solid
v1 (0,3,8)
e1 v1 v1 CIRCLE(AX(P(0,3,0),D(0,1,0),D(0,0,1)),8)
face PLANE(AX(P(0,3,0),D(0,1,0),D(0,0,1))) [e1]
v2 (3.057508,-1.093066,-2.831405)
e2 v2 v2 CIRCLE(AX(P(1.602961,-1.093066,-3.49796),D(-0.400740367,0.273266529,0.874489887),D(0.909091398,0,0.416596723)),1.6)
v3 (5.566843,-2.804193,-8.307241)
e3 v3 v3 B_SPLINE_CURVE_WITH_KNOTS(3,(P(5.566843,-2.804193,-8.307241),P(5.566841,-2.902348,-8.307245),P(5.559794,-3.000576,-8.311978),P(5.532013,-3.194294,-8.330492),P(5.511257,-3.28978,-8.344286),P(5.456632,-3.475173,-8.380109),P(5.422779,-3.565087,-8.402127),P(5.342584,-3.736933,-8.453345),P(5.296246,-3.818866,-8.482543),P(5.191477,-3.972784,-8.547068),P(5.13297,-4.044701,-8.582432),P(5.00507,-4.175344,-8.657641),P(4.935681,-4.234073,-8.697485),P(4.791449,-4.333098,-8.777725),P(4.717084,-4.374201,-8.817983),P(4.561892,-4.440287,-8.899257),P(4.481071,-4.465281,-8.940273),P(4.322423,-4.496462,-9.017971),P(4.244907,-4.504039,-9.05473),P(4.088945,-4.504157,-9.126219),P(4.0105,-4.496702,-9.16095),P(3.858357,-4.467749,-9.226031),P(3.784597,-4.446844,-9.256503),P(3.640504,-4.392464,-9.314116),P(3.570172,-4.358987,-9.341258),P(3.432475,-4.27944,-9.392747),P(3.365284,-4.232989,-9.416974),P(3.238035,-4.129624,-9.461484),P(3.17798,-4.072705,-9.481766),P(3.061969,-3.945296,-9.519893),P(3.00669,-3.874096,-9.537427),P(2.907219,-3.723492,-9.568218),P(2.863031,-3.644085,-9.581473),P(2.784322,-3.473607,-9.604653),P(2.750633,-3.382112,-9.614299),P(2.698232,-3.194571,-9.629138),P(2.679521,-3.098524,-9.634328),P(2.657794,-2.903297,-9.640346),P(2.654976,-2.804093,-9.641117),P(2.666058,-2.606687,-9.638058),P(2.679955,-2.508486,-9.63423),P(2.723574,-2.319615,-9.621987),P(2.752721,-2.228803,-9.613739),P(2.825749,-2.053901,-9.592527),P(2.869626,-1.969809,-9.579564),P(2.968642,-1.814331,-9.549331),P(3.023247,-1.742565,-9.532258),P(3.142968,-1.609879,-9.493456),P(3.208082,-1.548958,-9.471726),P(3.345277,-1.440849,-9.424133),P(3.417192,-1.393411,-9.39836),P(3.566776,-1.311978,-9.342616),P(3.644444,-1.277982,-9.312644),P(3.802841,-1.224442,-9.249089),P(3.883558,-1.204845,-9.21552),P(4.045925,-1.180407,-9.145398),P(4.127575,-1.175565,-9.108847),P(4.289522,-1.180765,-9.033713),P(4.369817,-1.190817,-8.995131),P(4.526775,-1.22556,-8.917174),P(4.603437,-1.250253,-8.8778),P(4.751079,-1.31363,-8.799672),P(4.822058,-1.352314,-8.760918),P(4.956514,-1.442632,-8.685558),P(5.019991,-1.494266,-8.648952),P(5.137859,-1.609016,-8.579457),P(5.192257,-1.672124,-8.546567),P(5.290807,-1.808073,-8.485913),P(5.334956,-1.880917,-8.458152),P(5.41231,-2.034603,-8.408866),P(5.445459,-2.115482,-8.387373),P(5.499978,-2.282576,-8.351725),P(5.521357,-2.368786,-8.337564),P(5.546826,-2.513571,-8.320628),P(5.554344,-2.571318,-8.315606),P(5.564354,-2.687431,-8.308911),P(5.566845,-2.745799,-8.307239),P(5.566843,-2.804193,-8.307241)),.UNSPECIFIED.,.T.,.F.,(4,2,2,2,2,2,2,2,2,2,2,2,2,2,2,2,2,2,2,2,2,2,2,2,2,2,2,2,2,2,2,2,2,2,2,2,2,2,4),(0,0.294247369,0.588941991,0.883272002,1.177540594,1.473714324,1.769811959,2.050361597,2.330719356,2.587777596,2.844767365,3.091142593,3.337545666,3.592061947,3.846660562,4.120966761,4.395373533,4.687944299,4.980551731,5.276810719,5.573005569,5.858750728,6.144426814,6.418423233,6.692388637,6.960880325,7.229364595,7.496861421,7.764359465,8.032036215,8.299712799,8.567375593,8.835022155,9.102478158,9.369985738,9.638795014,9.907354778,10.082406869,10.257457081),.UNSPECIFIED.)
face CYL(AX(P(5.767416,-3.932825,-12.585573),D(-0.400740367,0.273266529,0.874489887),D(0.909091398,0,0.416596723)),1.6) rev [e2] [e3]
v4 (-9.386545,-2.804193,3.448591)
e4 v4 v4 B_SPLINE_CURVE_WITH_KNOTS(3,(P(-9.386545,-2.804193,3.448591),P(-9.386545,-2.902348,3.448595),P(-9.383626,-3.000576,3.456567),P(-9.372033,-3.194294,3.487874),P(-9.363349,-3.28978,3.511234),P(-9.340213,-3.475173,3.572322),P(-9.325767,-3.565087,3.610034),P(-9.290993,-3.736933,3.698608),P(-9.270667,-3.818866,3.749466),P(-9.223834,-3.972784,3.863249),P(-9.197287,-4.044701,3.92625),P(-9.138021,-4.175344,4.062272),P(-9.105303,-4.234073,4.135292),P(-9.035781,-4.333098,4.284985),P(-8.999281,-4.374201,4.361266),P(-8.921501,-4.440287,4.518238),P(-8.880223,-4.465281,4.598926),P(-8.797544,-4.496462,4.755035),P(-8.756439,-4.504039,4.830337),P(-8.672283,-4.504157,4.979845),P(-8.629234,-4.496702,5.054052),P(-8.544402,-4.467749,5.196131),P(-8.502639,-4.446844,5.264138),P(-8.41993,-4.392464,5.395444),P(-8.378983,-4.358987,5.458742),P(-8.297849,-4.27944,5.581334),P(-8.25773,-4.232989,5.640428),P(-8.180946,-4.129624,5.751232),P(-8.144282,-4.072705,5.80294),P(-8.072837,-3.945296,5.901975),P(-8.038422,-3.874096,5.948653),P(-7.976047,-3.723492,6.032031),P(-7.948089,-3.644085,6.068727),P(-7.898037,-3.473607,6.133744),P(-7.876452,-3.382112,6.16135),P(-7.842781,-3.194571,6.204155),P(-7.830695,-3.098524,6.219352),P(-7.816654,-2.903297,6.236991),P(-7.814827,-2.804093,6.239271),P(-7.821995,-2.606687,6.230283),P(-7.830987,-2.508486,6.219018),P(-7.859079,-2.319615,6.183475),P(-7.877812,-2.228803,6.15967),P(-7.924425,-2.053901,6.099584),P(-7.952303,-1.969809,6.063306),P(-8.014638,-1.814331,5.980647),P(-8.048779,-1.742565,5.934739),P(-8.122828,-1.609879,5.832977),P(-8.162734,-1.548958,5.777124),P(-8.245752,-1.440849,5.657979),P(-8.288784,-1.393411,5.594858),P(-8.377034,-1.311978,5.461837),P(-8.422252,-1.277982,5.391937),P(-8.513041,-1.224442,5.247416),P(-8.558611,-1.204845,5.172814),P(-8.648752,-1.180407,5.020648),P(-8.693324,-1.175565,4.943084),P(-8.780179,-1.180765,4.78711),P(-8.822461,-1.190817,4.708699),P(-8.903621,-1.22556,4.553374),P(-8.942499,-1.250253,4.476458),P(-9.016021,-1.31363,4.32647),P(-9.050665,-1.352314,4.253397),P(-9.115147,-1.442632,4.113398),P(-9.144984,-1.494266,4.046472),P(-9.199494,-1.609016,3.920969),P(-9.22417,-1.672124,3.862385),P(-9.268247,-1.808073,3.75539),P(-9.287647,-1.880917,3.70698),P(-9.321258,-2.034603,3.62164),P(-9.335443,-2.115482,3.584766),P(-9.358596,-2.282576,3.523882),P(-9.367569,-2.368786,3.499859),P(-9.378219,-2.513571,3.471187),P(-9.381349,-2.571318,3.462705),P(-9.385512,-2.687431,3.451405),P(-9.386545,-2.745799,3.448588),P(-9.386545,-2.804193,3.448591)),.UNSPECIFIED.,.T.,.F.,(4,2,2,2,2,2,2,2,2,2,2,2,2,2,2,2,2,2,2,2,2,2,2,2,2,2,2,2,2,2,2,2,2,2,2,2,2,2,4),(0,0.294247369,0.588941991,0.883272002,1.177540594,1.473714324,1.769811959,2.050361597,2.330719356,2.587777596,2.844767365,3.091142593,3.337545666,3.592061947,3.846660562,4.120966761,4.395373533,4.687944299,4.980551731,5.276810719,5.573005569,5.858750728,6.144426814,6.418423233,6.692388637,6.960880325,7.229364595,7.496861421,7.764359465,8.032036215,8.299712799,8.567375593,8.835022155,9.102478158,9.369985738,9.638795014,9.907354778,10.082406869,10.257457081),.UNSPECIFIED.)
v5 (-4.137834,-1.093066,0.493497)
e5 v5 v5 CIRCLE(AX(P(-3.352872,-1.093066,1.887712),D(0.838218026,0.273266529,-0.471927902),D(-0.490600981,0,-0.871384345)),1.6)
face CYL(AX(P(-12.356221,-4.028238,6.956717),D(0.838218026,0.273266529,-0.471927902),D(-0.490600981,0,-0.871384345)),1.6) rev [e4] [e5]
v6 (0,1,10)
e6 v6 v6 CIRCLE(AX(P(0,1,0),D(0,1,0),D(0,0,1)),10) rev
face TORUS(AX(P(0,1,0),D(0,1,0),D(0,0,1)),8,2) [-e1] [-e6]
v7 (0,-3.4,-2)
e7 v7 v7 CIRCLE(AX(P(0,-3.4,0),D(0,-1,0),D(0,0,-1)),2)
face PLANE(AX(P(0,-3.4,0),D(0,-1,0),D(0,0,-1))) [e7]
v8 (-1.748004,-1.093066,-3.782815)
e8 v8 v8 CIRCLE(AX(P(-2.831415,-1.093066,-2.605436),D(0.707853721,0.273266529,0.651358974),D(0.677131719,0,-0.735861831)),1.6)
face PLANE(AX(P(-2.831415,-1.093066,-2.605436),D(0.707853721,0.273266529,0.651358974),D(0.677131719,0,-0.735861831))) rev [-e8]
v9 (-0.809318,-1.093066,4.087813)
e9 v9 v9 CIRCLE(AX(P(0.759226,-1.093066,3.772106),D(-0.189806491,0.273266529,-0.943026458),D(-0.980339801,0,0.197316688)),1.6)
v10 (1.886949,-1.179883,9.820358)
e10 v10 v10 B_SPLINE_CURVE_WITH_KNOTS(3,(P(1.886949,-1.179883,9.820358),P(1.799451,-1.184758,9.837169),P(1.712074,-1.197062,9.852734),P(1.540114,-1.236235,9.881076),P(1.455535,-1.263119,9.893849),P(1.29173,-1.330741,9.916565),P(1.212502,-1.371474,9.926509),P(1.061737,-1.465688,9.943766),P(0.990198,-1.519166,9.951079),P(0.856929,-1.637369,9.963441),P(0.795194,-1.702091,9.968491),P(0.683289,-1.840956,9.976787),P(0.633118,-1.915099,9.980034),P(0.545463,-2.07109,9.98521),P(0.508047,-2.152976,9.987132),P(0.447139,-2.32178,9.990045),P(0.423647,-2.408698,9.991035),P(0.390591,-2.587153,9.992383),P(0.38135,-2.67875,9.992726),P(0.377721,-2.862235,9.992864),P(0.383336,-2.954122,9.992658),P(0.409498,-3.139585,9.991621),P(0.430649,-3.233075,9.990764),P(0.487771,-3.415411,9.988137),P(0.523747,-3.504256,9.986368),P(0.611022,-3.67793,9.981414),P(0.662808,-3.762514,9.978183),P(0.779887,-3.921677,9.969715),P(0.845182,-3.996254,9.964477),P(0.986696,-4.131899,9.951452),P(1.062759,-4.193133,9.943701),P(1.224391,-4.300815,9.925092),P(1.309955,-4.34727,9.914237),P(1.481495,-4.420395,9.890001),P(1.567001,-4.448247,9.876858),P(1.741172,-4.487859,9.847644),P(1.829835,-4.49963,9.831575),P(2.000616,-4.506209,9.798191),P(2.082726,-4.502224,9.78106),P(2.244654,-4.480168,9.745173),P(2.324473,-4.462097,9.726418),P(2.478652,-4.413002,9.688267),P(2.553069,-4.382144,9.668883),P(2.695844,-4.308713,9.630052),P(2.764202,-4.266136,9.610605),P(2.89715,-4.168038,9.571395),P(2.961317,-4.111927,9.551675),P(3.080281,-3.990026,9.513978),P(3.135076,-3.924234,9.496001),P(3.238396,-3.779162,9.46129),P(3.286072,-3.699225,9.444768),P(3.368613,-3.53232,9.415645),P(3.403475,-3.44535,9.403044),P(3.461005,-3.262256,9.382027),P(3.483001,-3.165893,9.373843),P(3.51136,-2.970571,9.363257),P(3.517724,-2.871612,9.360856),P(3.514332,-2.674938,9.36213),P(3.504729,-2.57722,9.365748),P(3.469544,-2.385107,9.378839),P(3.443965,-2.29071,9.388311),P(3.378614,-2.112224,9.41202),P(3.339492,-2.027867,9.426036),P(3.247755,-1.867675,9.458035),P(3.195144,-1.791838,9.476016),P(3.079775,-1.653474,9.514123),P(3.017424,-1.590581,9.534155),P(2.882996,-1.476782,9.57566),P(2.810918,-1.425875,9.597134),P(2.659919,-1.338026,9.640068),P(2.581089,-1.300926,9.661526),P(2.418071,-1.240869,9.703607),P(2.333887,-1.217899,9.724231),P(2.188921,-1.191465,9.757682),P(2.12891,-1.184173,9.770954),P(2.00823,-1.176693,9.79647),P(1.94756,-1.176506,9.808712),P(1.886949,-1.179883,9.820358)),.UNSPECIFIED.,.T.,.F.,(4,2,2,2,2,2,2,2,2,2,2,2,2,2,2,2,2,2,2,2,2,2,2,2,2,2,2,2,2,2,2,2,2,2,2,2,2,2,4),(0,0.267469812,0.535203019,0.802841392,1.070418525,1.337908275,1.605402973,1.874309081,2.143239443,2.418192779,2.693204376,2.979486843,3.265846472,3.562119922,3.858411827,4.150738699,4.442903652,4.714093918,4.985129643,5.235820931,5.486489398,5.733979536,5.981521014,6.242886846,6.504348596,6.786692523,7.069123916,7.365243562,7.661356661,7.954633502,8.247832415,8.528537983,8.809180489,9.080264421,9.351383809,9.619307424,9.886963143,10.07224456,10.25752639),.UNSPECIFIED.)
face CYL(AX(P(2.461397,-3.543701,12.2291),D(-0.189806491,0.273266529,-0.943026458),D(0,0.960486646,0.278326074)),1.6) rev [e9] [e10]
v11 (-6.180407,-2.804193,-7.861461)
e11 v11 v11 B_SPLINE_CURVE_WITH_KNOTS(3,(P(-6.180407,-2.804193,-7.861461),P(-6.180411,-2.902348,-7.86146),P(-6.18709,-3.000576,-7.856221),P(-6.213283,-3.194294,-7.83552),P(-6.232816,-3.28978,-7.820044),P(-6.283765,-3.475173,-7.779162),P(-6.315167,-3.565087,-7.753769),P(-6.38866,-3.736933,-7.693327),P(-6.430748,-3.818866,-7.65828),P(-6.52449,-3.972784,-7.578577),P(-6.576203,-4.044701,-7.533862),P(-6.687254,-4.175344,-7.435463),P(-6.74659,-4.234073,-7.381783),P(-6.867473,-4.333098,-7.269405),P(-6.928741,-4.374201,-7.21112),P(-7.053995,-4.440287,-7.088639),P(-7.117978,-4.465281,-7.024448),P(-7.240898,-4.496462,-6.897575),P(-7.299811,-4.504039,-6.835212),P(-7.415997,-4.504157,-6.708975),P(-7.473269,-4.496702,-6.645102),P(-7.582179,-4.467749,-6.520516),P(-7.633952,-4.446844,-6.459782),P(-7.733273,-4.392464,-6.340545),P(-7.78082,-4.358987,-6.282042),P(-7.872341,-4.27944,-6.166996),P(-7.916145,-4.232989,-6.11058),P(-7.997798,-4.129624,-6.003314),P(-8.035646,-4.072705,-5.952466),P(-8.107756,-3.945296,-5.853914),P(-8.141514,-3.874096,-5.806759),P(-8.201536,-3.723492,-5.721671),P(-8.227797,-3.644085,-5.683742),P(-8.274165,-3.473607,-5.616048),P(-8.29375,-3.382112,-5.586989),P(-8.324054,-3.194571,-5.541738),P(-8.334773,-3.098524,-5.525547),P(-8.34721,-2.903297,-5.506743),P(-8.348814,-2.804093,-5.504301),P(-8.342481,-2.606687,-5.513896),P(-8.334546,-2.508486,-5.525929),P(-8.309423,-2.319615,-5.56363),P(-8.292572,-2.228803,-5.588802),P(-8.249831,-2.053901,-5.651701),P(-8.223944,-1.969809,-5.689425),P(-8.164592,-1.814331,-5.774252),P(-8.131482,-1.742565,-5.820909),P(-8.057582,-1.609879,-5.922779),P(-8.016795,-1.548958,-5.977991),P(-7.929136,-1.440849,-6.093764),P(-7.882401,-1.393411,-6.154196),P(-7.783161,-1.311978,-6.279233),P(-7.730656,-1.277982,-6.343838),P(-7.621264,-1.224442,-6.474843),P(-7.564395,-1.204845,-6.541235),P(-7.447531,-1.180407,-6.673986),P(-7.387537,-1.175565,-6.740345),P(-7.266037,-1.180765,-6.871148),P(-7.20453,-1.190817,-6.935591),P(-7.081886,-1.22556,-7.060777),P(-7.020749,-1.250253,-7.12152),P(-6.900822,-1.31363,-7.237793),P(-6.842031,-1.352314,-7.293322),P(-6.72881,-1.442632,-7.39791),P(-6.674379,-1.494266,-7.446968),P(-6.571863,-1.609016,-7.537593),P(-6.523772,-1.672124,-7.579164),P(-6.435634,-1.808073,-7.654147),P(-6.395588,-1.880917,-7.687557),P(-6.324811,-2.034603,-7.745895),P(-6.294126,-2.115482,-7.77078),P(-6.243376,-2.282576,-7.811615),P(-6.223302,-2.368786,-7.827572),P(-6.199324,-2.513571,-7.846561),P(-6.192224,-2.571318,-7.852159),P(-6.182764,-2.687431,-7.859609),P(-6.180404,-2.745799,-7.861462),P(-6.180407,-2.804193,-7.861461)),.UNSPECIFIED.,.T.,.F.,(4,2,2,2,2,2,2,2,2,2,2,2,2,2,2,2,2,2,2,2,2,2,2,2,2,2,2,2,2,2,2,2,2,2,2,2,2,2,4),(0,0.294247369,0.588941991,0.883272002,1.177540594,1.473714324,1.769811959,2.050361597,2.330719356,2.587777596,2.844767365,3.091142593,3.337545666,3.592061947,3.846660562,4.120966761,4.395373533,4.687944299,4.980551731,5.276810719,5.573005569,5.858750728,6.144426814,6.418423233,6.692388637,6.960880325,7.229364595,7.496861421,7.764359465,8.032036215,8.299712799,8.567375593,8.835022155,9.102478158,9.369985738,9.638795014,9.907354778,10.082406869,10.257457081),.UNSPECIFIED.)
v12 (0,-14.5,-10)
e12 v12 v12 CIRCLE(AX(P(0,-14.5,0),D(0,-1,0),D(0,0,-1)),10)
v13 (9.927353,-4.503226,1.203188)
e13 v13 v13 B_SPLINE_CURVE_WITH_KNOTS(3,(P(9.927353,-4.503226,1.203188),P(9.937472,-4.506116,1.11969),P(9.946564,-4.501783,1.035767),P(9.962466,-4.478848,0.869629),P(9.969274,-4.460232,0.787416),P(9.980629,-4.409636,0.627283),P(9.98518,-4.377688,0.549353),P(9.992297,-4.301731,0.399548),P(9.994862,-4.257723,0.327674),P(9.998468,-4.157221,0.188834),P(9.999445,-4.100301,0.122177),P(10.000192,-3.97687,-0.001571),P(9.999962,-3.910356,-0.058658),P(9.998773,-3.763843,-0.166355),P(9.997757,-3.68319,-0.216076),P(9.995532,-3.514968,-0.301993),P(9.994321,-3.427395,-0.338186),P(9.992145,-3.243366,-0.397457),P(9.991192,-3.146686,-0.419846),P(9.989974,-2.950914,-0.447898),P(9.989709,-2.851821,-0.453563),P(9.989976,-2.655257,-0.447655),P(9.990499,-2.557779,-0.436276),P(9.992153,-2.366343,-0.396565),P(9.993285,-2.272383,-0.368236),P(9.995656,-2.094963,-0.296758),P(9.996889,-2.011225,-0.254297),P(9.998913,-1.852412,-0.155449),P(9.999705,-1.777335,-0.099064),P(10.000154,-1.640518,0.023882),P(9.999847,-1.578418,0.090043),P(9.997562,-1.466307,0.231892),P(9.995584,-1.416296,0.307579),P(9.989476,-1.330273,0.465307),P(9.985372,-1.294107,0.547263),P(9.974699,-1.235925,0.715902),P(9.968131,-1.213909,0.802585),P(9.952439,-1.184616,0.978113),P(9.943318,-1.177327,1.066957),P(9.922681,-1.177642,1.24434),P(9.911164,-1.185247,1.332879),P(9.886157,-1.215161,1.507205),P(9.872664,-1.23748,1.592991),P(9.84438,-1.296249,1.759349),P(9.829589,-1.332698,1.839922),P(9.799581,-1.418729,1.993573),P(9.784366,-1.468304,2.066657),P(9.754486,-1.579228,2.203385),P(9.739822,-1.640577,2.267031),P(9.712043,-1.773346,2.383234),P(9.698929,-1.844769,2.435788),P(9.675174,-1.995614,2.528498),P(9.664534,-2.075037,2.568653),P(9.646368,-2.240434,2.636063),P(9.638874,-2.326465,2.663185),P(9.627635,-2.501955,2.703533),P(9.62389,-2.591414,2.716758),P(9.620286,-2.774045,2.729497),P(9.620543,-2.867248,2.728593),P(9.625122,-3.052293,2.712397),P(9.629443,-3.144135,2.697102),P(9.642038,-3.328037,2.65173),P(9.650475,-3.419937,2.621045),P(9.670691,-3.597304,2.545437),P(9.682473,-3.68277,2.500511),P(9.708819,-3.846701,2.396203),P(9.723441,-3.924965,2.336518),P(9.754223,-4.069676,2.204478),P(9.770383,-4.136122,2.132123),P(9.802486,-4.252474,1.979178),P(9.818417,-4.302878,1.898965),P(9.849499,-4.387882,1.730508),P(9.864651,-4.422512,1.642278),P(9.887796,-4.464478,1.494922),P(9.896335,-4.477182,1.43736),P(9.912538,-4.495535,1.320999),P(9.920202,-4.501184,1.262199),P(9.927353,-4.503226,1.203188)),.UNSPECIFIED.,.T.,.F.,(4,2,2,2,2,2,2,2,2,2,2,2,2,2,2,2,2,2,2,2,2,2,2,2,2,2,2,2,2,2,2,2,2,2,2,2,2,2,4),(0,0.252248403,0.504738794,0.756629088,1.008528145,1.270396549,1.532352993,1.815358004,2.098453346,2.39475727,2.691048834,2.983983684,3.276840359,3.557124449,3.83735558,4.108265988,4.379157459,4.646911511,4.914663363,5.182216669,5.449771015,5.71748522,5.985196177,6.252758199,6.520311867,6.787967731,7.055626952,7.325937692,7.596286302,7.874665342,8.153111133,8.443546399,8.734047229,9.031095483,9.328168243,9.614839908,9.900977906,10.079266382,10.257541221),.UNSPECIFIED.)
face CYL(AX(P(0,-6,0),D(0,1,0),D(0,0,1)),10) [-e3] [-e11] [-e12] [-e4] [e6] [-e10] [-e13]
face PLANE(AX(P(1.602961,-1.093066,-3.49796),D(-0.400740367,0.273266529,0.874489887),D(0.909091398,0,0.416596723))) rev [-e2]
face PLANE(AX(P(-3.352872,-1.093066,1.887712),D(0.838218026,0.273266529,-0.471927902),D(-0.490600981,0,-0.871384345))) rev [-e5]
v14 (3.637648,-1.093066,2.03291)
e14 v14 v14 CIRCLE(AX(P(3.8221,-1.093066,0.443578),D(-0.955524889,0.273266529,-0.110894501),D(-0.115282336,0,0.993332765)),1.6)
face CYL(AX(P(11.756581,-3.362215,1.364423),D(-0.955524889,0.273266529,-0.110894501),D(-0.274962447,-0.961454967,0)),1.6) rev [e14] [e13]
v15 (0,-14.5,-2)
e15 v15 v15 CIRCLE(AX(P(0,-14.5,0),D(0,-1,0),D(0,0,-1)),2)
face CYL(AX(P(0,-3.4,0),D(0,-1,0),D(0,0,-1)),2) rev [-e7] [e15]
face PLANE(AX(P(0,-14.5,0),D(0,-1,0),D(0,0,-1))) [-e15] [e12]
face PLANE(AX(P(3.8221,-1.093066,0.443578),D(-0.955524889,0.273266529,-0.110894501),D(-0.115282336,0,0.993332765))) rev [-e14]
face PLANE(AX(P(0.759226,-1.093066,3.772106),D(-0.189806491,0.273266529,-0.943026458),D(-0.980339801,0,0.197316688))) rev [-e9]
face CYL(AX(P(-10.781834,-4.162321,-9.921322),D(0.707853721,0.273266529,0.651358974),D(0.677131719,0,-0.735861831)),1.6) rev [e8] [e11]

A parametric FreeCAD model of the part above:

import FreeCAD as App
import Part
import Sketcher
from FreeCAD import Vector


def edges_at(feature, points):
    """Names of the edges that pass closest to the given points."""
    edges = feature.Shape.Edges
    near = lambda p: min(range(len(edges)), key=lambda i: edges[i].distToShape(Part.Vertex(*p))[0])
    return sorted({f"Edge{near(p) + 1}" for p in points})

doc = App.newDocument("Part")
body = doc.addObject("PartDesign::Body", "Body")

# Sketch on XZ plane
sketch1 = doc.addObject("Sketcher::SketchObject", "Sketch")
body.addObject(sketch1)
sketch1.AttachmentSupport = (doc.XZ_Plane, [""])
sketch1.MapMode = "FlatFace"
sketch1.addGeometry(Part.Circle(Vector(0, 0, 0), Vector(0, 0, 1), 10), False)
sketch1.addConstraint([
    Sketcher.Constraint("Coincident", 0, 3, -1, 1),
    Sketcher.Constraint("Diameter", 0, 20.0),
])
pad1 = doc.addObject("PartDesign::Pad", "Pad")
body.addObject(pad1)
pad1.Profile = sketch1
pad1.Type = "TwoLengths"
pad1.Length = 3
pad1.Length2 = 6
pad1.Reversed = True

# Sketch on an angled plane
sketch2 = doc.addObject("Sketcher::SketchObject", "Sketch001")
body.addObject(sketch2)
sketch2.Placement = App.Placement(Vector(-3.352872, -1.093066, 1.887712), App.Rotation(Vector(-0.448686261, -0.14627571, -0.881637145), Vector(-0.309953511, 0.950751713, 0), Vector(0.838218026, 0.273266529, -0.471927902), "ZXY"))
sketch2.addGeometry(Part.Circle(Vector(0, 0, 0), Vector(0, 0, 1), 1.6), False)
sketch2.addConstraint([
    Sketcher.Constraint("Coincident", 0, 3, -1, 1),
    Sketcher.Constraint("Diameter", 0, 3.2),
])
pocket1 = doc.addObject("PartDesign::Pocket", "Pocket")
body.addObject(pocket1)
pocket1.Profile = sketch2
pocket1.Type = "ThroughAll"
doc.recompute()

polarpattern = doc.addObject("PartDesign::PolarPattern", "PolarPattern")
body.addObject(polarpattern)
polarpattern.Originals = [pocket1]
polarpattern.Axis = (doc.Y_Axis, [""])
polarpattern.Angle = 360
polarpattern.Occurrences = 5
body.Tip = polarpattern
doc.recompute()

fillet = doc.addObject("PartDesign::Fillet", "Fillet")
body.addObject(fillet)
fillet.Base = (polarpattern, edges_at(polarpattern, [(0, 3, -10)]))
fillet.Radius = 2

# Sketch on XZ plane
sketch3 = doc.addObject("Sketcher::SketchObject", "Sketch002")
body.addObject(sketch3)
sketch3.AttachmentSupport = (doc.XZ_Plane, [""])
sketch3.MapMode = "FlatFace"
sketch3.AttachmentOffset = App.Placement(Vector(0, 0, 14.5), App.Rotation())
sketch3.addGeometry(Part.Circle(Vector(0, 0, 0), Vector(0, 0, 1), 10), False)
sketch3.addConstraint([
    Sketcher.Constraint("Coincident", 0, 3, -1, 1),
    Sketcher.Constraint("Diameter", 0, 20.0),
])
pad2 = doc.addObject("PartDesign::Pad", "Pad001")
body.addObject(pad2)
pad2.Profile = sketch3
pad2.Length = 8.5
pad2.Reversed = True

# Sketch on XZ plane
sketch4 = doc.addObject("Sketcher::SketchObject", "Sketch003")
body.addObject(sketch4)
sketch4.AttachmentSupport = (doc.XZ_Plane, [""])
sketch4.MapMode = "FlatFace"
sketch4.AttachmentOffset = App.Placement(Vector(0, 0, 14.5), App.Rotation())
sketch4.addGeometry(Part.Circle(Vector(0, 0, 0), Vector(0, 0, 1), 2), False)
sketch4.addConstraint([
    Sketcher.Constraint("Coincident", 0, 3, -1, 1),
    Sketcher.Constraint("Diameter", 0, 4.0),
])
pocket2 = doc.addObject("PartDesign::Pocket", "Pocket001")
body.addObject(pocket2)
pocket2.Profile = sketch4
pocket2.Length = 11.1

doc.recompute()
